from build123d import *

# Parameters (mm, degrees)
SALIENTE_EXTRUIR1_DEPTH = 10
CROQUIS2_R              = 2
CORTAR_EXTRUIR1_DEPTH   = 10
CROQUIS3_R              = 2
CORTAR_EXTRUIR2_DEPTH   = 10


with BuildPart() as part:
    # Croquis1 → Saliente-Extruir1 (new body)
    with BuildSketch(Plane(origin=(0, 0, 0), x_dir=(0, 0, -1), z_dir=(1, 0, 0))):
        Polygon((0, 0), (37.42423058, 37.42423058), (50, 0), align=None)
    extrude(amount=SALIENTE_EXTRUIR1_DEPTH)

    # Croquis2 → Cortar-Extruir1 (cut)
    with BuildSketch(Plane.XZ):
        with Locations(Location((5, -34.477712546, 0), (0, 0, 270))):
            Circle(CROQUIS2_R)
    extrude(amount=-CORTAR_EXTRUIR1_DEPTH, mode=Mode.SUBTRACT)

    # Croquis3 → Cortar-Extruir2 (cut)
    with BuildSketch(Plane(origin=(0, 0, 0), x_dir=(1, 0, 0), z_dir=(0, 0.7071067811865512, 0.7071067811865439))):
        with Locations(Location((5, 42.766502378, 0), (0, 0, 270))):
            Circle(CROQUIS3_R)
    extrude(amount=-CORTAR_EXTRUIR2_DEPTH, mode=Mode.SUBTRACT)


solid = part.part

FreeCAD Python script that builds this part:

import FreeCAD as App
import Part
import Sketcher
from FreeCAD import Vector
Q = App.Units.Quantity


def add_polygon(sketch, points):
    """Adds a closed chain of lines whose ends are joined by coincident constraints."""
    first, n = sketch.GeometryCount, len(points)
    for a, b in zip(points, points[1:] + points[:1]):
        sketch.addGeometry(Part.LineSegment(App.Vector(*a, 0), App.Vector(*b, 0)), False)
    for i in range(n):
        sketch.addConstraint(Sketcher.Constraint("Coincident", first + i, 2, first + (i + 1) % n, 1))

doc = App.newDocument("Part")
body = doc.addObject("PartDesign::Body", "Body")

# Sketch on YZ plane
sketch1 = body.newObject("Sketcher::SketchObject", "Sketch")
sketch1.AttachmentSupport = (doc.getObject("YZ_Plane"), [""])
sketch1.MapMode = "FlatFace"
add_polygon(sketch1, [(37, -37), (0, 0), (0, -50)])  # lines 0-2
sketch1.addConstraint(Sketcher.Constraint("Vertical", 1))
sketch1.addConstraint(Sketcher.Constraint("Coincident", 0, 2, -1, 1))
sketch1.addConstraint(Sketcher.Constraint("DistanceY", 1, 2, 1, 1, 50.0))
sketch1.addConstraint(Sketcher.Constraint("Angle", 0, Q("135 deg")))
sketch1.addConstraint(Sketcher.Constraint("DistanceX", -1, 1, 2, 2, 37.424231))
pad1 = body.newObject("PartDesign::Pad", "Pad")
pad1.Profile = sketch1
pad1.Length = 10

# Sketch on XZ plane
sketch2 = body.newObject("Sketcher::SketchObject", "Sketch001")
sketch2.AttachmentSupport = (doc.getObject("XZ_Plane"), [""])
sketch2.MapMode = "FlatFace"
sketch2.addGeometry(Part.Circle(Vector(5, -34.5, 0), Vector(0, 0, 1), 2), False)
sketch2.addConstraint(Sketcher.Constraint("Diameter", 0, 4.0))
sketch2.addConstraint(Sketcher.Constraint("DistanceX", -1, 1, 0, 3, 5.0))
sketch2.addConstraint(Sketcher.Constraint("DistanceY", 0, 3, -1, 1, 34.477713))
pocket1 = body.newObject("PartDesign::Pocket", "Pocket")
pocket1.Profile = sketch2
pocket1.Length = 10

# Sketch on an angled plane
sketch3 = body.newObject("Sketcher::SketchObject", "Sketch002")
sketch3.Placement = App.Placement(Vector(0, 0, 0), App.Rotation(Vector(1, 0, 0), Vector(0, 0.707106781, -0.707106781), Vector(0, 0.707106781, 0.707106781), "ZXY"))
sketch3.addGeometry(Part.Circle(Vector(5, 42.8, 0), Vector(0, 0, 1), 2), False)
sketch3.addConstraint(Sketcher.Constraint("Diameter", 0, 4.0))
sketch3.addConstraint(Sketcher.Constraint("DistanceX", -1, 1, 0, 3, 5.0))
sketch3.addConstraint(Sketcher.Constraint("DistanceY", -1, 1, 0, 3, 42.766502))
pocket2 = body.newObject("PartDesign::Pocket", "Pocket001")
pocket2.Profile = sketch3
pocket2.Length = 10

doc.recompute()
